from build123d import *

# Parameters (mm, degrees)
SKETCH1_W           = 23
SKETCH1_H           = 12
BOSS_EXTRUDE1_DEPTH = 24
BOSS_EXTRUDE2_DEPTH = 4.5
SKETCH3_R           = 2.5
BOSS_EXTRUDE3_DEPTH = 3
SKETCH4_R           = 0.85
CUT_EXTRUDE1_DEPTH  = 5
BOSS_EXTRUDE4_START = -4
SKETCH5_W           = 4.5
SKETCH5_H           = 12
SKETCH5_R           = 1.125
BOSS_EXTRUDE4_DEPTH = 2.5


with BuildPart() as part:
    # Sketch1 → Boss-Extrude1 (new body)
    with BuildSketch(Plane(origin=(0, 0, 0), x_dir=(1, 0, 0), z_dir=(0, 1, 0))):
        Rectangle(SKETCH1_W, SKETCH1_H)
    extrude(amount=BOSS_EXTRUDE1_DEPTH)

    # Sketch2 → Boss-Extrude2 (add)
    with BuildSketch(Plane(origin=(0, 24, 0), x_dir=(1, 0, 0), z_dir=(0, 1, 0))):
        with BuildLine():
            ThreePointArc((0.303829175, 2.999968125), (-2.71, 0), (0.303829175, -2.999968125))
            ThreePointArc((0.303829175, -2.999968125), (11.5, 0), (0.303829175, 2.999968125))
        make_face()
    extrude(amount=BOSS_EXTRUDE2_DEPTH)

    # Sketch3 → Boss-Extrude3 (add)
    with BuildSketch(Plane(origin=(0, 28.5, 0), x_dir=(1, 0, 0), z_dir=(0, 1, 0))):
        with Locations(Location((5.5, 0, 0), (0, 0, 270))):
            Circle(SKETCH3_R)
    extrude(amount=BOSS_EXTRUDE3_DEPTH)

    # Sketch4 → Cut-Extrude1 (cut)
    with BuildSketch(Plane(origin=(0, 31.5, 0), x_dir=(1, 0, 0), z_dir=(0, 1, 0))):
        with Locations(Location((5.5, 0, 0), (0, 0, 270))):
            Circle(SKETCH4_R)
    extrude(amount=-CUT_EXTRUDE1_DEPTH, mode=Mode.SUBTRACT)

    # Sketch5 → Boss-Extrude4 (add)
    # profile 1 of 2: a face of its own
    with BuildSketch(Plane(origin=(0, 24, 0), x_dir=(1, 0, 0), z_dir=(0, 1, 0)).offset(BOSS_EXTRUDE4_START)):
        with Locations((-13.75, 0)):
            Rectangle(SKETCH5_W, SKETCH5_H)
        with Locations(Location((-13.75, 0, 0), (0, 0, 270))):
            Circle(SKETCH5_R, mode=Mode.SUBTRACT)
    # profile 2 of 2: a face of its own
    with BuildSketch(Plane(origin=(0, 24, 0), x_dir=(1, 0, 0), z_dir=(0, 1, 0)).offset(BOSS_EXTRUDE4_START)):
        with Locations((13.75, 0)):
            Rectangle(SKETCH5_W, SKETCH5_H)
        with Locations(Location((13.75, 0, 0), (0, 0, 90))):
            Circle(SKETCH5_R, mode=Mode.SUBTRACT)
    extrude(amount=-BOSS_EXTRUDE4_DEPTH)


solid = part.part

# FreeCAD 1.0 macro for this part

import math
import FreeCAD as App
import Part
import Sketcher
from FreeCAD import Vector
Q = App.Units.Quantity


def add_polygon(sketch, points):
    """Adds a closed chain of lines whose ends are joined by coincident constraints."""
    first, n = sketch.GeometryCount, len(points)
    for a, b in zip(points, points[1:] + points[:1]):
        sketch.addGeometry(Part.LineSegment(App.Vector(*a, 0), App.Vector(*b, 0)), False)
    for i in range(n):
        sketch.addConstraint(Sketcher.Constraint("Coincident", first + i, 2, first + (i + 1) % n, 1))

doc = App.newDocument("Part")
params = doc.addObject("Spreadsheet::Sheet", "Params")
for row, (alias, value) in enumerate([
    ("sketch1_width", "23 mm"),
    ("sketch1_height", "12 mm"),
    ("pad1_length", "24 mm"),
    ("sketch2_radius", "3 mm"),
    ("sketch2_radius2", "6 mm"),
    ("pad2_length", "4.5 mm"),
    ("sketch3_diameter", "5 mm"),
    ("pad3_length", "3 mm"),
    ("sketch4_diameter", "1.7 mm"),
    ("pocket1_length", "5 mm"),
    ("sketch5_diameter", "2.25 mm"),
    ("sketch5_height", "12 mm"),
    ("sketch5_width", "4.5 mm"),
    ("pad4_length", "2.5 mm"),
], start=1):
    params.set(f"A{row}", alias)
    params.set(f"B{row}", "=" + value)
    params.setAlias(f"B{row}", alias)

body = doc.addObject("PartDesign::Body", "Body")

# Sketch on XZ plane
sketch1 = body.newObject("Sketcher::SketchObject", "Sketch")
sketch1.AttachmentSupport = (doc.getObject("XZ_Plane"), [""])
sketch1.MapMode = "FlatFace"
add_polygon(sketch1, [(-11.5, -6), (-11.5, 6), (11.5, 6), (11.5, -6)])  # lines 0-3
sketch1.addConstraint(Sketcher.Constraint("Vertical", 0))
sketch1.addConstraint(Sketcher.Constraint("Horizontal", 1))
sketch1.addConstraint(Sketcher.Constraint("Vertical", 2))
sketch1.addConstraint(Sketcher.Constraint("Horizontal", 3))
sketch1.addConstraint(Sketcher.Constraint("Symmetric", 0, 2, 2, 2, -1, 1))
sketch1.addConstraint(Sketcher.Constraint("DistanceX", 1, 1, 1, 2, Q("23 mm")))
sketch1.addConstraint(Sketcher.Constraint("DistanceY", 0, 1, 0, 2, Q("12 mm")))
sketch1.setExpression("Constraints[9]", "Params.sketch1_width")
sketch1.setExpression("Constraints[10]", "Params.sketch1_height")
pad1 = body.newObject("PartDesign::Pad", "Pad")
pad1.Profile = sketch1
pad1.setExpression("Length", "Params.pad1_length")
pad1.Reversed = True

# Sketch on XZ plane
sketch2 = body.newObject("Sketcher::SketchObject", "Sketch001")
sketch2.AttachmentSupport = (doc.getObject("XZ_Plane"), [""])
sketch2.MapMode = "FlatFace"
sketch2.AttachmentOffset = App.Placement(Vector(0, 0, -24), App.Rotation())
sketch2.addGeometry(Part.ArcOfCircle(Part.Circle(Vector(0.29, 0, 0), Vector(0, 0, 1), 3), math.radians(89.735881), math.radians(270.264119)), False)
sketch2.addGeometry(Part.ArcOfCircle(Part.Circle(Vector(5.5, 0, 0), Vector(0, 0, 1), 6), math.radians(-150.000351), math.radians(150.000351)), False)
sketch2.addConstraint(Sketcher.Constraint("Coincident", 0, 1, 1, 2))
sketch2.addConstraint(Sketcher.Constraint("Coincident", 1, 1, 0, 2))
sketch2.addConstraint(Sketcher.Constraint("Symmetric", 0, 1, 1, 1, -1))
sketch2.addConstraint(Sketcher.Constraint("Radius", 0, Q("3 mm")))
sketch2.addConstraint(Sketcher.Constraint("Radius", 1, Q("6 mm")))
sketch2.addConstraint(Sketcher.Constraint("DistanceX", -1, 1, 1, 3, Q("5.5 mm")))
sketch2.addConstraint(Sketcher.Constraint("DistanceX", -1, 1, 0, 3, Q("0.29 mm")))
sketch2.setExpression("Constraints[3]", "Params.sketch2_radius")
sketch2.setExpression("Constraints[4]", "Params.sketch2_radius2")
pad2 = body.newObject("PartDesign::Pad", "Pad001")
pad2.Profile = sketch2
pad2.setExpression("Length", "Params.pad2_length")
pad2.Reversed = True

# Sketch on XZ plane
sketch3 = body.newObject("Sketcher::SketchObject", "Sketch002")
sketch3.AttachmentSupport = (doc.getObject("XZ_Plane"), [""])
sketch3.MapMode = "FlatFace"
sketch3.AttachmentOffset = App.Placement(Vector(0, 0, -28.5), App.Rotation())
sketch3.addGeometry(Part.Circle(Vector(5.5, 0, 0), Vector(0, 0, 1), 2.5), False)
sketch3.addConstraint(Sketcher.Constraint("PointOnObject", 0, 3, -1))
sketch3.addConstraint(Sketcher.Constraint("Diameter", 0, Q("5 mm")))
sketch3.addConstraint(Sketcher.Constraint("DistanceX", -1, 1, 0, 3, Q("5.5 mm")))
sketch3.setExpression("Constraints[1]", "Params.sketch3_diameter")
pad3 = body.newObject("PartDesign::Pad", "Pad002")
pad3.Profile = sketch3
pad3.setExpression("Length", "Params.pad3_length")
pad3.Reversed = True

# Sketch on XZ plane
sketch4 = body.newObject("Sketcher::SketchObject", "Sketch003")
sketch4.AttachmentSupport = (doc.getObject("XZ_Plane"), [""])
sketch4.MapMode = "FlatFace"
sketch4.AttachmentOffset = App.Placement(Vector(0, 0, -31.5), App.Rotation())
sketch4.addGeometry(Part.Circle(Vector(5.5, 0, 0), Vector(0, 0, 1), 0.85), False)
sketch4.addConstraint(Sketcher.Constraint("PointOnObject", 0, 3, -1))
sketch4.addConstraint(Sketcher.Constraint("Diameter", 0, Q("1.7 mm")))
sketch4.addConstraint(Sketcher.Constraint("DistanceX", -1, 1, 0, 3, Q("5.5 mm")))
sketch4.setExpression("Constraints[1]", "Params.sketch4_diameter")
pocket1 = body.newObject("PartDesign::Pocket", "Pocket")
pocket1.Profile = sketch4
pocket1.setExpression("Length", "Params.pocket1_length")
pocket1.Reversed = True

# Sketch on XZ plane
sketch5 = body.newObject("Sketcher::SketchObject", "Sketch004")
sketch5.AttachmentSupport = (doc.getObject("XZ_Plane"), [""])
sketch5.MapMode = "FlatFace"
sketch5.AttachmentOffset = App.Placement(Vector(0, 0, -20), App.Rotation())
add_polygon(sketch5, [(-16, -6), (-16, 6), (-11.5, 6), (-11.5, -6)])  # lines 0-3
sketch5.addGeometry(Part.Circle(Vector(-13.75, 0, 0), Vector(0, 0, 1), 1.125), False)  # 4
add_polygon(sketch5, [(11.5, -6), (11.5, 6), (16, 6), (16, -6)])  # lines 5-8
sketch5.addGeometry(Part.Circle(Vector(13.75, 0, 0), Vector(0, 0, 1), 1.125), False)  # 9
sketch5.addConstraint(Sketcher.Constraint("Vertical", 0))
sketch5.addConstraint(Sketcher.Constraint("Horizontal", 1))
sketch5.addConstraint(Sketcher.Constraint("Vertical", 2))
sketch5.addConstraint(Sketcher.Constraint("Horizontal", 3))
sketch5.addConstraint(Sketcher.Constraint("Vertical", 5))
sketch5.addConstraint(Sketcher.Constraint("Horizontal", 6))
sketch5.addConstraint(Sketcher.Constraint("Vertical", 7))
sketch5.addConstraint(Sketcher.Constraint("Horizontal", 8))
sketch5.addConstraint(Sketcher.Constraint("Equal", 4, 9))
sketch5.addConstraint(Sketcher.Constraint("Symmetric", 4, 3, 9, 3, -1, 1))
sketch5.addConstraint(Sketcher.Constraint("Symmetric", 2, 2, 5, 2, -1, 1))
sketch5.addConstraint(Sketcher.Constraint("Symmetric", 0, 2, 7, 2, -1, 1))
sketch5.addConstraint(Sketcher.Constraint("PointOnObject", 4, 3, -1))
sketch5.addConstraint(Sketcher.Constraint("Horizontal", 1, 2, 5, 2))
sketch5.addConstraint(Sketcher.Constraint("Diameter", 4, Q("2.25 mm")))
sketch5.addConstraint(Sketcher.Constraint("DistanceY", 0, 1, 0, 2, Q("12 mm")))
sketch5.addConstraint(Sketcher.Constraint("DistanceX", 1, 1, 1, 2, Q("4.5 mm")))
sketch5.addConstraint(Sketcher.Constraint("DistanceX", 0, 2, -1, 1, Q("16 mm")))
sketch5.addConstraint(Sketcher.Constraint("DistanceX", 4, 3, 9, 3, Q("27.5 mm")))
sketch5.setExpression("Constraints[22]", "Params.sketch5_diameter")
sketch5.setExpression("Constraints[23]", "Params.sketch5_height")
sketch5.setExpression("Constraints[24]", "Params.sketch5_width")
pad4 = body.newObject("PartDesign::Pad", "Pad003")
pad4.Profile = sketch5
pad4.setExpression("Length", "Params.pad4_length")

doc.recompute()
